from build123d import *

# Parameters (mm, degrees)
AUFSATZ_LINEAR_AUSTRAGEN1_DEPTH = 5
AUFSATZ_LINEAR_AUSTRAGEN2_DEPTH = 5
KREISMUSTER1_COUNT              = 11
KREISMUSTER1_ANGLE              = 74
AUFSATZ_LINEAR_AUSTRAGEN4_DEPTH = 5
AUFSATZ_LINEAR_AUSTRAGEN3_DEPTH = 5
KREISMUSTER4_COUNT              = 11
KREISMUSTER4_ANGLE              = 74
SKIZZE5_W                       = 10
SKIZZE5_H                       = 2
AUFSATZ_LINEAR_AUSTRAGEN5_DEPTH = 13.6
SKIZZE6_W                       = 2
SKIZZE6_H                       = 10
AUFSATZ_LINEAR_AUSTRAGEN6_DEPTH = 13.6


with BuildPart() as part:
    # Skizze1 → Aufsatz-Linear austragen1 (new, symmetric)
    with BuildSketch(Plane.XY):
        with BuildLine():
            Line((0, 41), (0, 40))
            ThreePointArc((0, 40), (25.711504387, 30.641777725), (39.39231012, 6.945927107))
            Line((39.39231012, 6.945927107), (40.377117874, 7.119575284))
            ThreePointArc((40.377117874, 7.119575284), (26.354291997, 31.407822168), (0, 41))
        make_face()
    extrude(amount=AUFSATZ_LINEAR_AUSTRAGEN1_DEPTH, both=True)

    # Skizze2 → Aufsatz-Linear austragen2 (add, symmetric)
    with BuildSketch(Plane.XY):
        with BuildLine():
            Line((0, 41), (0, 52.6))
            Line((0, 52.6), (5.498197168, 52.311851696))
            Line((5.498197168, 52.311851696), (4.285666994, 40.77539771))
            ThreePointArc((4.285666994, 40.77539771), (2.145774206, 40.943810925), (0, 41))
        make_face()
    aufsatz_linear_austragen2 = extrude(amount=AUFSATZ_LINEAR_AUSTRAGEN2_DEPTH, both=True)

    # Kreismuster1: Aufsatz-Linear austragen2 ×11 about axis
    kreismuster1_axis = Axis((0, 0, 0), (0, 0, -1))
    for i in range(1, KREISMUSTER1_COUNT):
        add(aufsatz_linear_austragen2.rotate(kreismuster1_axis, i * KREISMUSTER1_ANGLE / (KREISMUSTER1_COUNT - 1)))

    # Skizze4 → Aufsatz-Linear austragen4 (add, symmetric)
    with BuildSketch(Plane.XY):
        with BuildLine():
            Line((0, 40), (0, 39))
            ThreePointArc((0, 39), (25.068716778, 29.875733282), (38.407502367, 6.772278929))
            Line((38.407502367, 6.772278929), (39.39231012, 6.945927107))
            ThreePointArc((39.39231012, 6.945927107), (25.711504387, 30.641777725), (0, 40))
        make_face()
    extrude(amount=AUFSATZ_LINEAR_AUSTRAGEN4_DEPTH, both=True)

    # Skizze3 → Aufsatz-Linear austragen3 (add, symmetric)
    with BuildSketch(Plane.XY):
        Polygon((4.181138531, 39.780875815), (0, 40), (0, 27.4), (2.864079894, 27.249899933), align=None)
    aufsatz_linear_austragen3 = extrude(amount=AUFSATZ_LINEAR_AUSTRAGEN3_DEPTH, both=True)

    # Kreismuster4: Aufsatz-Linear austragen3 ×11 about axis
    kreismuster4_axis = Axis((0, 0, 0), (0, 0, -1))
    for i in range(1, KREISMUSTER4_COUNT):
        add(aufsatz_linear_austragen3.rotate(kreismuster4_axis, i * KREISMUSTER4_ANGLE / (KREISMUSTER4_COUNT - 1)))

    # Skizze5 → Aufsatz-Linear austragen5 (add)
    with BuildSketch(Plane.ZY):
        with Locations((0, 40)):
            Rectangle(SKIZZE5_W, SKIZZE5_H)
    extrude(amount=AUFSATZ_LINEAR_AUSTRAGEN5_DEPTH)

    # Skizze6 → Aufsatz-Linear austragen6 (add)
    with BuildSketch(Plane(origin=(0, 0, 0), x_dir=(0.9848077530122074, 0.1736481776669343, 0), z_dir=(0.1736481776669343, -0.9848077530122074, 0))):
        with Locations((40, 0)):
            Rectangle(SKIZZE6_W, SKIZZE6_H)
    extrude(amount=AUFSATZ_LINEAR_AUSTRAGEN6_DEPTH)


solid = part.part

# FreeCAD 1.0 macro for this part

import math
import FreeCAD as App
import Part
import Sketcher

V = App.Vector
Q = App.Units.Quantity

doc = App.newDocument("Part")
body = doc.addObject("PartDesign::Body", "Body")

# Sketch on XY plane
sketch1 = body.newObject("Sketcher::SketchObject", "Sketch")
sketch1.AttachmentSupport = (doc.getObject("XY_Plane"), [""])
sketch1.MapMode = "FlatFace"
sketch1.addGeometry([
    Part.LineSegment(V(0, 41, 0), V(0, 40, 0)),
    Part.ArcOfCircle(Part.Circle(V(0, 0, 0), V(0, 0, 1), 40), math.radians(10), math.radians(90)),
    Part.LineSegment(V(39.39231, 6.945927, 0), V(40.377118, 7.119575, 0)),
    Part.ArcOfCircle(Part.Circle(V(0, 0, 0), V(0, 0, 1), 41), math.radians(10), math.radians(90)),
], False)
sketch1.addConstraint([
    Sketcher.Constraint("Coincident", 0, 2, 1, 2),
    Sketcher.Constraint("Coincident", 1, 1, 2, 1),
    Sketcher.Constraint("Coincident", 2, 2, 3, 1),
    Sketcher.Constraint("Coincident", 3, 2, 0, 1),
    Sketcher.Constraint("Vertical", 0),
    Sketcher.Constraint("Coincident", 1, 3, -1, 1),
    Sketcher.Constraint("Coincident", 3, 3, -1, 1),
    Sketcher.Constraint("PointOnObject", 0, 2, -2),
    Sketcher.Constraint("Radius", 1, 40.0),
    Sketcher.Constraint("Radius", 3, 41.0),
    Sketcher.Constraint("Angle", 2, Q("10 deg")),
    Sketcher.Constraint("DistanceX", -1, 1, 1, 1, 39.39231),
])
pad1 = body.newObject("PartDesign::Pad", "Pad")
pad1.Profile = sketch1
pad1.Length = 10
pad1.Midplane = True

# Sketch on XY plane
sketch2 = body.newObject("Sketcher::SketchObject", "Sketch001")
sketch2.AttachmentSupport = (doc.getObject("XY_Plane"), [""])
sketch2.MapMode = "FlatFace"
sketch2.addGeometry([
    Part.LineSegment(V(0, 52.6, 0), V(0, 41, 0)),
    Part.ArcOfCircle(Part.Circle(V(0, 0, 0), V(0, 0, 1), 41), math.radians(84), math.radians(90)),
    Part.LineSegment(V(4.285667, 40.775398, 0), V(5.498197, 52.311852, 0)),
    Part.LineSegment(V(5.498197, 52.311852, 0), V(0, 52.6, 0)),
], False)
sketch2.addConstraint([
    Sketcher.Constraint("Coincident", 0, 2, 1, 2),
    Sketcher.Constraint("Coincident", 1, 1, 2, 1),
    Sketcher.Constraint("Coincident", 2, 2, 3, 1),
    Sketcher.Constraint("Coincident", 3, 2, 0, 1),
    Sketcher.Constraint("Vertical", 0),
    Sketcher.Constraint("Coincident", 1, 3, -1, 1),
    Sketcher.Constraint("PointOnObject", 0, 2, -2),
    Sketcher.Constraint("Radius", 1, 41.0),
    Sketcher.Constraint("Angle", 2, Q("84 deg")),
    Sketcher.Constraint("Angle", 3, Q("177 deg")),
    Sketcher.Constraint("DistanceY", 0, 2, 0, 1, 11.6),
    Sketcher.Constraint("Distance", 2, 11.6),
])
pad2 = body.newObject("PartDesign::Pad", "Pad001")
pad2.Profile = sketch2
pad2.Length = 10
pad2.Midplane = True
doc.recompute()

polarpattern = body.newObject("PartDesign::PolarPattern", "PolarPattern")
polarpattern.Originals = [pad2]
polarpattern.Axis = (doc.getObject("Z_Axis"), [""])
polarpattern.Angle = 74
polarpattern.Occurrences = 11
polarpattern.Reversed = True
body.Tip = polarpattern

# Sketch on XY plane
sketch3 = body.newObject("Sketcher::SketchObject", "Sketch002")
sketch3.AttachmentSupport = (doc.getObject("XY_Plane"), [""])
sketch3.MapMode = "FlatFace"
sketch3.addGeometry([
    Part.LineSegment(V(0, 40, 0), V(0, 39, 0)),
    Part.ArcOfCircle(Part.Circle(V(0, 0, 0), V(0, 0, 1), 39), math.radians(10), math.radians(90)),
    Part.LineSegment(V(38.407502, 6.772279, 0), V(39.39231, 6.945927, 0)),
    Part.ArcOfCircle(Part.Circle(V(0, 0, 0), V(0, 0, 1), 40), math.radians(10), math.radians(90)),
], False)
sketch3.addConstraint([
    Sketcher.Constraint("Coincident", 0, 2, 1, 2),
    Sketcher.Constraint("Coincident", 1, 1, 2, 1),
    Sketcher.Constraint("Coincident", 2, 2, 3, 1),
    Sketcher.Constraint("Coincident", 3, 2, 0, 1),
    Sketcher.Constraint("Vertical", 0),
    Sketcher.Constraint("Coincident", 1, 3, -1, 1),
    Sketcher.Constraint("Coincident", 3, 3, -1, 1),
    Sketcher.Constraint("PointOnObject", 0, 2, -2),
    Sketcher.Constraint("Radius", 1, 39.0),
    Sketcher.Constraint("Radius", 3, 40.0),
    Sketcher.Constraint("Angle", 2, Q("10 deg")),
    Sketcher.Constraint("DistanceY", -1, 1, 1, 1, 6.772279),
])
pad3 = body.newObject("PartDesign::Pad", "Pad002")
pad3.Profile = sketch3
pad3.Length = 10
pad3.Midplane = True

# Sketch on XY plane
sketch4 = body.newObject("Sketcher::SketchObject", "Sketch003")
sketch4.AttachmentSupport = (doc.getObject("XY_Plane"), [""])
sketch4.MapMode = "FlatFace"
sketch4.addGeometry([
    Part.LineSegment(V(4.181139, 39.780876, 0), V(0, 40, 0)),
    Part.LineSegment(V(0, 40, 0), V(0, 27.4, 0)),
    Part.LineSegment(V(0, 27.4, 0), V(2.86408, 27.2499, 0)),
    Part.LineSegment(V(2.86408, 27.2499, 0), V(4.181139, 39.780876, 0)),
], False)
sketch4.addConstraint([
    Sketcher.Constraint("Coincident", 0, 2, 1, 1),
    Sketcher.Constraint("Coincident", 1, 2, 2, 1),
    Sketcher.Constraint("Coincident", 2, 2, 3, 1),
    Sketcher.Constraint("Coincident", 3, 2, 0, 1),
    Sketcher.Constraint("Vertical", 1),
    Sketcher.Constraint("PointOnObject", 0, 2, -2),
    Sketcher.Constraint("Parallel", 0, 2),
    Sketcher.Constraint("Angle", 0, Q("177 deg")),
    Sketcher.Constraint("Angle", 3, Q("84 deg")),
    Sketcher.Constraint("DistanceY", 1, 2, 1, 1, 12.6),
    Sketcher.Constraint("DistanceY", -1, 1, 0, 2, 40.0),
    Sketcher.Constraint("DistanceY", -1, 1, 2, 2, 27.2499),
])
pad4 = body.newObject("PartDesign::Pad", "Pad003")
pad4.Profile = sketch4
pad4.Length = 10
pad4.Midplane = True
doc.recompute()

polarpattern2 = body.newObject("PartDesign::PolarPattern", "PolarPattern001")
polarpattern2.Originals = [pad4]
polarpattern2.Axis = (doc.getObject("Z_Axis"), [""])
polarpattern2.Angle = 74
polarpattern2.Occurrences = 11
polarpattern2.Reversed = True
body.Tip = polarpattern2

# Sketch on YZ plane
sketch5 = body.newObject("Sketcher::SketchObject", "Sketch004")
sketch5.AttachmentSupport = (doc.getObject("YZ_Plane"), [""])
sketch5.MapMode = "FlatFace"
sketch5.addGeometry([
    Part.LineSegment(V(41, -5, 0), V(39, -5, 0)),
    Part.LineSegment(V(39, -5, 0), V(39, 5, 0)),
    Part.LineSegment(V(39, 5, 0), V(41, 5, 0)),
    Part.LineSegment(V(41, 5, 0), V(41, -5, 0)),
], False)
sketch5.addConstraint([
    Sketcher.Constraint("Coincident", 0, 2, 1, 1),
    Sketcher.Constraint("Coincident", 1, 2, 2, 1),
    Sketcher.Constraint("Coincident", 2, 2, 3, 1),
    Sketcher.Constraint("Coincident", 3, 2, 0, 1),
    Sketcher.Constraint("Horizontal", 0),
    Sketcher.Constraint("Vertical", 1),
    Sketcher.Constraint("Horizontal", 2),
    Sketcher.Constraint("Vertical", 3),
    Sketcher.Constraint("DistanceX", 0, 2, 0, 1, 2.0),
    Sketcher.Constraint("DistanceY", 1, 1, 1, 2, 10.0),
    Sketcher.Constraint("DistanceX", -1, 1, 0, 2, 39.0),
    Sketcher.Constraint("DistanceY", 0, 2, -1, 1, 5.0),
])
pad5 = body.newObject("PartDesign::Pad", "Pad004")
pad5.Profile = sketch5
pad5.Length = 13.6
pad5.Reversed = True

# Sketch on an angled plane
sketch6 = body.newObject("Sketcher::SketchObject", "Sketch005")
sketch6.Placement = App.Placement(V(0, 0, 0), App.Rotation(V(0.984807753, 0.173648178, 0), V(0, 0, 1), V(0.173648178, -0.984807753, 0), "ZXY"))
sketch6.addGeometry([
    Part.LineSegment(V(39, 5, 0), V(39, -5, 0)),
    Part.LineSegment(V(39, -5, 0), V(41, -5, 0)),
    Part.LineSegment(V(41, -5, 0), V(41, 5, 0)),
    Part.LineSegment(V(41, 5, 0), V(39, 5, 0)),
], False)
sketch6.addConstraint([
    Sketcher.Constraint("Coincident", 0, 2, 1, 1),
    Sketcher.Constraint("Coincident", 1, 2, 2, 1),
    Sketcher.Constraint("Coincident", 2, 2, 3, 1),
    Sketcher.Constraint("Coincident", 3, 2, 0, 1),
    Sketcher.Constraint("Vertical", 0),
    Sketcher.Constraint("Horizontal", 1),
    Sketcher.Constraint("Vertical", 2),
    Sketcher.Constraint("Horizontal", 3),
    Sketcher.Constraint("DistanceX", 1, 1, 1, 2, 2.0),
    Sketcher.Constraint("DistanceY", 0, 2, 0, 1, 10.0),
    Sketcher.Constraint("DistanceX", -1, 1, 0, 2, 39.0),
    Sketcher.Constraint("DistanceY", 0, 2, -1, 1, 5.0),
])
pad6 = body.newObject("PartDesign::Pad", "Pad005")
pad6.Profile = sketch6
pad6.Length = 13.6

doc.recompute()
